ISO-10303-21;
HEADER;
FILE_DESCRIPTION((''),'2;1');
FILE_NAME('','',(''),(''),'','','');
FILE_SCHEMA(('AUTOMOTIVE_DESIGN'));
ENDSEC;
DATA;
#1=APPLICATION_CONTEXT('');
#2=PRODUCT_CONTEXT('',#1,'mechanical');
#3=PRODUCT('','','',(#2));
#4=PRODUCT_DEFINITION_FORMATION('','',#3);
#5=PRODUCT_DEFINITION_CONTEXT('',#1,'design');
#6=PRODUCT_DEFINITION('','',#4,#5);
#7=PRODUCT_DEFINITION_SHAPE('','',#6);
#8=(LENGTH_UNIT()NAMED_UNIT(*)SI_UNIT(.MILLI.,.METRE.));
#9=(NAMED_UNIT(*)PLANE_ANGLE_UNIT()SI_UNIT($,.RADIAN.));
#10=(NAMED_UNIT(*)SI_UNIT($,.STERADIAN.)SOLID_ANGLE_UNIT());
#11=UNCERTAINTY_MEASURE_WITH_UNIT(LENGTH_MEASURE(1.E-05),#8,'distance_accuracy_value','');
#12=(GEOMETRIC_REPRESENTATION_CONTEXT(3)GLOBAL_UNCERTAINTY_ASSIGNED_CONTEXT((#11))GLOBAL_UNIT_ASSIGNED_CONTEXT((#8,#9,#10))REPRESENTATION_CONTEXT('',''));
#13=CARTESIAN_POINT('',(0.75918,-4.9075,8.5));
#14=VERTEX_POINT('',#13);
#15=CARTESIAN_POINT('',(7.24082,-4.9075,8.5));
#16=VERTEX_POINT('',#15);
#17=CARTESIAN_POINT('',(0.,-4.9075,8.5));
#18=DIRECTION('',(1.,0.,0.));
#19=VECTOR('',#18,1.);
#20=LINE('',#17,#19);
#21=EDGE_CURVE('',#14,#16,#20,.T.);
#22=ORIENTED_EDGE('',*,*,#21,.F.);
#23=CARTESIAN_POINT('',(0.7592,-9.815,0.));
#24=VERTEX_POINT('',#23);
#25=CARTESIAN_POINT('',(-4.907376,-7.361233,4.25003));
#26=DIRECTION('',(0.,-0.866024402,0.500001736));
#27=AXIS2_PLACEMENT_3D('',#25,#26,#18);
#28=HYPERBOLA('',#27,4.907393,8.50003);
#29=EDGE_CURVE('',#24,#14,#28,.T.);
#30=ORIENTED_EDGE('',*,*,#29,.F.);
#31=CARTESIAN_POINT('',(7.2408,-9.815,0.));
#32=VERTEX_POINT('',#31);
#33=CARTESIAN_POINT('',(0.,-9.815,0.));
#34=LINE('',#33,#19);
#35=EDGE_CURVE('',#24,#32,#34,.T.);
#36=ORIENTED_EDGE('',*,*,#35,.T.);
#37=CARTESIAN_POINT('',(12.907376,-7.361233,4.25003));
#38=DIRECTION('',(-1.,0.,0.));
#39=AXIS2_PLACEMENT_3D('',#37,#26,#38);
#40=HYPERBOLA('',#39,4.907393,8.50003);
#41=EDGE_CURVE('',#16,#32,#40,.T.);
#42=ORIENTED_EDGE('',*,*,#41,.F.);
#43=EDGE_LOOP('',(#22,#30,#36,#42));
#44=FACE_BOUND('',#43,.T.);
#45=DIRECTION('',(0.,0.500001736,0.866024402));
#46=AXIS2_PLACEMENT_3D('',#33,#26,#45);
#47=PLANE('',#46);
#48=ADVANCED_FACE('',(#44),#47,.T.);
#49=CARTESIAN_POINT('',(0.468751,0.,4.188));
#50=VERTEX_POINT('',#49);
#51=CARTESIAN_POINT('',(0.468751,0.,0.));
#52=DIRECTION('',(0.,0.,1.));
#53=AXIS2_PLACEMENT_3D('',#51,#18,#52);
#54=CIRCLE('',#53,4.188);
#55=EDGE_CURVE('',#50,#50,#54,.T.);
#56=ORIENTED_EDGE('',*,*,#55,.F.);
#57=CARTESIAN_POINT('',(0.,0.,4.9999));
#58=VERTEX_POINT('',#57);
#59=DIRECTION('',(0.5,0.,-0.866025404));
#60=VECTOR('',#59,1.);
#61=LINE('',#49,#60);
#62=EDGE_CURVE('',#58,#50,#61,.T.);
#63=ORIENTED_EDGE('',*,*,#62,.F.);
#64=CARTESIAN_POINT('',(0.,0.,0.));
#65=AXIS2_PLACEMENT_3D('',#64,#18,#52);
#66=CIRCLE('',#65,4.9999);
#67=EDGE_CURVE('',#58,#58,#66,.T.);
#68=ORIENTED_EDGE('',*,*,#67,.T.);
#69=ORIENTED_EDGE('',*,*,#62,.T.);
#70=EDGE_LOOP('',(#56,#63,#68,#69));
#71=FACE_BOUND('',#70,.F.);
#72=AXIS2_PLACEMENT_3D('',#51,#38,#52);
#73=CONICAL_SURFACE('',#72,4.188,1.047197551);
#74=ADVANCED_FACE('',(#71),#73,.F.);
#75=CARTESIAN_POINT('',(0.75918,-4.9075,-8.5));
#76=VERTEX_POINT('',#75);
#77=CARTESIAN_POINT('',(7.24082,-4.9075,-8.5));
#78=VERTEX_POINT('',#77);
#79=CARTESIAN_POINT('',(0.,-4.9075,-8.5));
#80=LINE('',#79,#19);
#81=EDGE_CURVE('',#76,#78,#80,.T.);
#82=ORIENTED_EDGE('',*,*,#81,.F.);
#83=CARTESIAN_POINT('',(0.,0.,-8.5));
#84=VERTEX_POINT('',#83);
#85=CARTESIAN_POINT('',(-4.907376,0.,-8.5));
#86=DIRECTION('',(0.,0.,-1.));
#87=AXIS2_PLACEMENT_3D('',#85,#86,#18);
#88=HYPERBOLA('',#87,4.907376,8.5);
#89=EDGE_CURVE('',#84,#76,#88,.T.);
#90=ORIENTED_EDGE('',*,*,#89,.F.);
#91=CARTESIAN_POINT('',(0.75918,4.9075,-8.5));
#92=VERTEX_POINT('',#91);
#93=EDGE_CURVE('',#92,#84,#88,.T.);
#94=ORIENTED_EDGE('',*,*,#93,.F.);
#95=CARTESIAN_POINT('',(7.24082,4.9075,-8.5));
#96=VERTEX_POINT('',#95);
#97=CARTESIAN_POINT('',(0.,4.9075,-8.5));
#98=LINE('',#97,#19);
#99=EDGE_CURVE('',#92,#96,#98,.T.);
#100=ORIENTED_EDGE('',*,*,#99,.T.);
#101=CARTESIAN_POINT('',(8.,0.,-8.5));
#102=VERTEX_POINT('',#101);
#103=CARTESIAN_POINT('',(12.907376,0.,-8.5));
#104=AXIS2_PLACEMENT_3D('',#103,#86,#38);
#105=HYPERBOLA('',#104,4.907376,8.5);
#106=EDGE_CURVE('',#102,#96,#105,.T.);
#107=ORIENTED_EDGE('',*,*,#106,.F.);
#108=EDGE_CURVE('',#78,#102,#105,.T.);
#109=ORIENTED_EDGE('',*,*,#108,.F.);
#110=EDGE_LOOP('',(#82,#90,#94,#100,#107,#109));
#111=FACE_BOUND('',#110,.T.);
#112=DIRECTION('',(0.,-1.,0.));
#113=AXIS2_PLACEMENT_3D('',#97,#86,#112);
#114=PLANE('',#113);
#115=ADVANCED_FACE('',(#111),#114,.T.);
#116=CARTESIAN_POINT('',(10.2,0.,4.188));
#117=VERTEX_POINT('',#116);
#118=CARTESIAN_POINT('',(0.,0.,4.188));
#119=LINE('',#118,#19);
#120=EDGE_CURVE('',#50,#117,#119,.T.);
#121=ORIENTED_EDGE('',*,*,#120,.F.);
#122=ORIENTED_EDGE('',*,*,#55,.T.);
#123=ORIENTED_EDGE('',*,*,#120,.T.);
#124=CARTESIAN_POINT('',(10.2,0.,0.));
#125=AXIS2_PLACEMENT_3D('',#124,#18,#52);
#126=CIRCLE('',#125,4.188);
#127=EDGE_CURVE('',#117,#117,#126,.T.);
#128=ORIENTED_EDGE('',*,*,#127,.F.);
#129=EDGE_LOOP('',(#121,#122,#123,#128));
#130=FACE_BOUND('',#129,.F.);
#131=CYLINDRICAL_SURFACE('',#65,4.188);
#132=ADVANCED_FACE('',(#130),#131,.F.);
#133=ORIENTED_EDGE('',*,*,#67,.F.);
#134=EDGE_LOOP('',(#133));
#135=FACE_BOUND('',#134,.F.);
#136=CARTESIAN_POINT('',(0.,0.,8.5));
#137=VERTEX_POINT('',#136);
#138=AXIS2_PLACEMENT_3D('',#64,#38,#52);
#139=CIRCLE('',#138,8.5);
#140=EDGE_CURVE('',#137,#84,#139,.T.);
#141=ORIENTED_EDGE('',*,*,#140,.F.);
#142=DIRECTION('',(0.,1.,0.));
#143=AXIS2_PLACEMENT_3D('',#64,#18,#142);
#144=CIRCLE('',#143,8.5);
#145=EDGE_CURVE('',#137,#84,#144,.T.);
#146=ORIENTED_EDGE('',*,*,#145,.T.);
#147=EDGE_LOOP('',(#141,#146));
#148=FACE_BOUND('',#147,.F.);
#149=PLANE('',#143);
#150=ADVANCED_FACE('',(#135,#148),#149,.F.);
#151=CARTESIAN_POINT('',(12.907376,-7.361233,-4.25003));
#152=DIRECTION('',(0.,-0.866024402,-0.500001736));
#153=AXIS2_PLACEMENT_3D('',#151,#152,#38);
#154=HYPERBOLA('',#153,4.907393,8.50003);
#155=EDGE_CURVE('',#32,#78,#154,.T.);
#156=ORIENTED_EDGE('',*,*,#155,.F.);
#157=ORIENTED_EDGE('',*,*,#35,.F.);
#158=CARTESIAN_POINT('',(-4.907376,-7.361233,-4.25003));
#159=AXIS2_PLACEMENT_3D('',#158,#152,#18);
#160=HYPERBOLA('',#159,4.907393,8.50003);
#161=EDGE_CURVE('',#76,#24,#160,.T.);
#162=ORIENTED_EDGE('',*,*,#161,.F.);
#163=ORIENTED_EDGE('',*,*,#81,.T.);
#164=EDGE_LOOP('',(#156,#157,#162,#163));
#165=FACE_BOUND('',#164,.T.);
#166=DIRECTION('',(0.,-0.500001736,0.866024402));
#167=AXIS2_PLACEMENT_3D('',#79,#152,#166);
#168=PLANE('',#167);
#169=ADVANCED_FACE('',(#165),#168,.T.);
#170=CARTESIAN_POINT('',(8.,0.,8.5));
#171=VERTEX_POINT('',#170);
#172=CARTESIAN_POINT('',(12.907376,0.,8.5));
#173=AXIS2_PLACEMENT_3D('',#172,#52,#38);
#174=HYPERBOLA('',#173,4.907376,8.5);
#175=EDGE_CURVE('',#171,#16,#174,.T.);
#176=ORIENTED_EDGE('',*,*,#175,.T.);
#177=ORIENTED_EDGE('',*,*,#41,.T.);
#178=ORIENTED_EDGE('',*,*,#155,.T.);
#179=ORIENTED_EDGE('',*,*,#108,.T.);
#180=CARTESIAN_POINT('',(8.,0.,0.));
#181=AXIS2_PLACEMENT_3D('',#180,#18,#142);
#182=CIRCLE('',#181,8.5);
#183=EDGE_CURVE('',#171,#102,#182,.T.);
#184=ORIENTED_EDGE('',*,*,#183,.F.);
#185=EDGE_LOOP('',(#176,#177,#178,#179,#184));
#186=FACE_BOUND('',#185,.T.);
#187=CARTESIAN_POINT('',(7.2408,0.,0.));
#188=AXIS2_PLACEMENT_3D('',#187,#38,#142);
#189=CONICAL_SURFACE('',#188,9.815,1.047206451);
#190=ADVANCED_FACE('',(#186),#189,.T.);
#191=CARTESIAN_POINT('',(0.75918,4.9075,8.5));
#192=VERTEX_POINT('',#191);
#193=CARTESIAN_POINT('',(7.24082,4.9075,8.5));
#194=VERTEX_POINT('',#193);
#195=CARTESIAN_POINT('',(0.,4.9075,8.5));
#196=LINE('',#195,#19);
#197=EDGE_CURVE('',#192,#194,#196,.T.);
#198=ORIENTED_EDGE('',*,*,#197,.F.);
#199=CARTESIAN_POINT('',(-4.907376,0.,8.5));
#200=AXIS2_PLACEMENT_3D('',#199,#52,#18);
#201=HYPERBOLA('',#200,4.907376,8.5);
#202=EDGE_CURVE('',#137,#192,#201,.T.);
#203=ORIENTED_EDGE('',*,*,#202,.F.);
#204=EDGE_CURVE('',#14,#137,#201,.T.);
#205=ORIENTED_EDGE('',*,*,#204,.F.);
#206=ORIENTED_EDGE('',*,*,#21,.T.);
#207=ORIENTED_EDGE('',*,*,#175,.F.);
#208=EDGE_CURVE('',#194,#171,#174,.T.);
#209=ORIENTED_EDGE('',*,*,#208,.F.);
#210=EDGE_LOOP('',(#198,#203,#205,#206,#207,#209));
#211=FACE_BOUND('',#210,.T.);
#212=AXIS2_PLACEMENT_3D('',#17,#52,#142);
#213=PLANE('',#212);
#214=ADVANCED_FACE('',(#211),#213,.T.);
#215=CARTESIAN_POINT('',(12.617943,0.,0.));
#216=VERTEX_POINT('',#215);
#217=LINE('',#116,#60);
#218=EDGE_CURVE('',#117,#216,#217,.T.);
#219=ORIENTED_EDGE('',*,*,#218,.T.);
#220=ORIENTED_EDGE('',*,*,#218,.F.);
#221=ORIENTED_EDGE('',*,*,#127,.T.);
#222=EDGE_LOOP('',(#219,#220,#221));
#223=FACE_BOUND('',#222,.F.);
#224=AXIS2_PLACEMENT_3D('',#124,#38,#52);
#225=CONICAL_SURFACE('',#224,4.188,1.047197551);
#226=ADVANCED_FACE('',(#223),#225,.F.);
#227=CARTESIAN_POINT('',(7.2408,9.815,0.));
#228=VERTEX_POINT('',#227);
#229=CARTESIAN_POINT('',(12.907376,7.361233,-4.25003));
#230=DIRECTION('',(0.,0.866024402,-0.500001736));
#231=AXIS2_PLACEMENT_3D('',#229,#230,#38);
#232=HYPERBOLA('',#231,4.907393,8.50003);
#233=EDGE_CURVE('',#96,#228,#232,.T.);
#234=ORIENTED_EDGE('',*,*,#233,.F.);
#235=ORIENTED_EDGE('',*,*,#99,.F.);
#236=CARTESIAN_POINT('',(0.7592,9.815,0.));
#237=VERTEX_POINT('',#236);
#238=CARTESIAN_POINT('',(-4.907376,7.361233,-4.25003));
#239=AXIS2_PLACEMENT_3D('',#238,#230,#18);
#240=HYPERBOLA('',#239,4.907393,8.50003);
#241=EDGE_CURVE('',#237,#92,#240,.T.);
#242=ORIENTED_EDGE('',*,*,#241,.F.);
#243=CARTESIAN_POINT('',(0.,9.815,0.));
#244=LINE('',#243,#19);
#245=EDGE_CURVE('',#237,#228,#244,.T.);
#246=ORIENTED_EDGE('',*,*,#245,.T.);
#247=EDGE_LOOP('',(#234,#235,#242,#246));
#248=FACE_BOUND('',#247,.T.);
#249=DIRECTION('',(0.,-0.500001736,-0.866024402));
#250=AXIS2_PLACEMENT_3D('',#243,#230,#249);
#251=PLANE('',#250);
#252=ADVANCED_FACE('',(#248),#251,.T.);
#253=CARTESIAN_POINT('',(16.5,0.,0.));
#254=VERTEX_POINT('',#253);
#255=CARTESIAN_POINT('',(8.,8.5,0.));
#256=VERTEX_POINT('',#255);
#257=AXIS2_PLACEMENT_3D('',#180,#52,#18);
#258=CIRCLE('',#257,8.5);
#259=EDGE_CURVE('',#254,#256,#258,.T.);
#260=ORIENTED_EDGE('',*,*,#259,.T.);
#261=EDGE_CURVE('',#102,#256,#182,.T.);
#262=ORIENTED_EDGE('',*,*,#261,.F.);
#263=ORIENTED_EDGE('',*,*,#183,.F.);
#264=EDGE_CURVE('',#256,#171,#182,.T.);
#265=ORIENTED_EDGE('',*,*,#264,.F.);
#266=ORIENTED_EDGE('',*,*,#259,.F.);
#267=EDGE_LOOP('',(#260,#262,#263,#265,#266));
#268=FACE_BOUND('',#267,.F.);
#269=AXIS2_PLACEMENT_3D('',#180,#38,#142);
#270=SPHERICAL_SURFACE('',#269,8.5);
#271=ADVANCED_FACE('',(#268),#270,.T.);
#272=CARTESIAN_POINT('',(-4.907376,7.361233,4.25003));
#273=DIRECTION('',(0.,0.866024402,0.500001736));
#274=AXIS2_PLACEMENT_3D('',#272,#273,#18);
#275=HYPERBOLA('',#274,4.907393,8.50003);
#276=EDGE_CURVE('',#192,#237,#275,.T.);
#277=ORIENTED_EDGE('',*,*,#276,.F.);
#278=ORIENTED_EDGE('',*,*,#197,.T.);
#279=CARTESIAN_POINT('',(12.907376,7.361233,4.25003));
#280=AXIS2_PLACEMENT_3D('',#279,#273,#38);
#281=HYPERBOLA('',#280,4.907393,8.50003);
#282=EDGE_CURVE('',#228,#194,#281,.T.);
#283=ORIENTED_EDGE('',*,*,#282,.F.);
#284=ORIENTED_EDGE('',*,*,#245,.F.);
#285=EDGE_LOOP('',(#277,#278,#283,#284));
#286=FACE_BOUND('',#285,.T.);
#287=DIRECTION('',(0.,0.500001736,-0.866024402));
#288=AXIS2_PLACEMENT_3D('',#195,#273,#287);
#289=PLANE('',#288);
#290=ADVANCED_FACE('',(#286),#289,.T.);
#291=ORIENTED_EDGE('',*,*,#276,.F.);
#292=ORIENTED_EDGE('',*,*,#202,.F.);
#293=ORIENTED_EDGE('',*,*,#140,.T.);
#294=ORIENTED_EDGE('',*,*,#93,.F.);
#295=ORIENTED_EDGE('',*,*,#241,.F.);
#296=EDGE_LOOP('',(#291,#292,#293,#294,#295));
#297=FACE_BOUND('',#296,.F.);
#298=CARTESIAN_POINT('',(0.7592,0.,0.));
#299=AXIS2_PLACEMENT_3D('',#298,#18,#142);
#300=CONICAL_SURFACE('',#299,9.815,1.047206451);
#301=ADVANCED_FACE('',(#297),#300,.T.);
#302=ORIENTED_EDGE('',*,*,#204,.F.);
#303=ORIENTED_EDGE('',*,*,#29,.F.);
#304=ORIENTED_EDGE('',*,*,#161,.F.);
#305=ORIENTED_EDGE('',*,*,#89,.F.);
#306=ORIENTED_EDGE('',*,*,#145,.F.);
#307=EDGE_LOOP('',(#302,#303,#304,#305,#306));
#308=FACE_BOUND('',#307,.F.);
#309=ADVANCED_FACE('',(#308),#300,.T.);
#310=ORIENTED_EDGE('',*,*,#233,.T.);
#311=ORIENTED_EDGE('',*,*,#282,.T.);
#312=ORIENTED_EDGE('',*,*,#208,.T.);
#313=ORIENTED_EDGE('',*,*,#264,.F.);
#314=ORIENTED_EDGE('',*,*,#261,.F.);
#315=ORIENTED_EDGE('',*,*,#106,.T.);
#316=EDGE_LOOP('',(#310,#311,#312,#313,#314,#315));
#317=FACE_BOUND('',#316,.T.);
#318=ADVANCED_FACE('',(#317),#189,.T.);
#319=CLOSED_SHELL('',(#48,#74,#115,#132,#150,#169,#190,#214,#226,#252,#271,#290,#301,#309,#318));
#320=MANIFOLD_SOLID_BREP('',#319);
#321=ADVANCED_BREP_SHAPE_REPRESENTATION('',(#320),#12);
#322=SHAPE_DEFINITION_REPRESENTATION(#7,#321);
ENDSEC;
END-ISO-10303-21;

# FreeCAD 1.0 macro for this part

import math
import FreeCAD as App
import Part
import Sketcher
from FreeCAD import Vector
Q = App.Units.Quantity


def edges_at(feature, points):
    """Names of the edges that pass closest to the given points."""
    edges = feature.Shape.Edges
    near = lambda p: min(range(len(edges)), key=lambda i: edges[i].distToShape(Part.Vertex(*p))[0])
    return sorted({f"Edge{near(p) + 1}" for p in points})

doc = App.newDocument("Part")
body = doc.addObject("PartDesign::Body", "Body")

sketch1 = doc.addObject("Sketcher::SketchObject", "Sketch")
body.addObject(sketch1)
sketch1.AttachmentSupport = (doc.YZ_Plane, [""])
sketch1.MapMode = "FlatFace"
sketch1.addGeometry([
    Part.LineSegment(Vector(-9.815, 0, 0), Vector(-4.9075, -8.5, 0)),
    Part.LineSegment(Vector(-4.9075, -8.5, 0), Vector(4.9075, -8.5, 0)),
    Part.LineSegment(Vector(4.9075, -8.5, 0), Vector(9.815, 0, 0)),
    Part.LineSegment(Vector(9.815, 0, 0), Vector(4.9075, 8.5, 0)),
    Part.LineSegment(Vector(4.9075, 8.5, 0), Vector(-4.9075, 8.5, 0)),
    Part.LineSegment(Vector(-4.9075, 8.5, 0), Vector(-9.815, 0, 0)),
], False)
sketch1.addConstraint([
    Sketcher.Constraint("Coincident", 0, 2, 1, 1),
    Sketcher.Constraint("Coincident", 1, 2, 2, 1),
    Sketcher.Constraint("Coincident", 2, 2, 3, 1),
    Sketcher.Constraint("Coincident", 3, 2, 4, 1),
    Sketcher.Constraint("Coincident", 4, 2, 5, 1),
    Sketcher.Constraint("Coincident", 5, 2, 0, 1),
    Sketcher.Constraint("Horizontal", 1),
    Sketcher.Constraint("Horizontal", 4),
    Sketcher.Constraint("Symmetric", 0, 2, 3, 2, -1, 1),
    Sketcher.Constraint("Symmetric", 2, 2, 5, 2, -1, 1),
    Sketcher.Constraint("PointOnObject", 2, 2, -1),
    Sketcher.Constraint("Parallel", 2, 5),
    Sketcher.Constraint("Vertical", 1, 2, 3, 2),
    Sketcher.Constraint("Angle", 0, Q("-60 deg")),
    Sketcher.Constraint("DistanceX", 5, 2, 2, 2, Q("19.63 mm")),
    Sketcher.Constraint("DistanceY", 1, 2, 3, 2, Q("17 mm")),
])
pad1 = doc.addObject("PartDesign::Pad", "Pad")
body.addObject(pad1)
pad1.Profile = sketch1
pad1.Length = 8

sketch2 = doc.addObject("Sketcher::SketchObject", "Sketch001")
body.addObject(sketch2)
sketch2.AttachmentSupport = (doc.XY_Plane, [""])
sketch2.MapMode = "FlatFace"
sketch2.addGeometry([
    Part.LineSegment(Vector(8, 8.5, 0), Vector(8, 0, 0)),
    Part.LineSegment(Vector(8, 0, 0), Vector(16.5, 0, 0)),
    Part.ArcOfCircle(Part.Circle(Vector(8, 0, 0), Vector(0, 0, 1), 8.5), math.radians(0), math.radians(90)),
], False)
sketch2.addConstraint([
    Sketcher.Constraint("Coincident", 0, 2, 1, 1),
    Sketcher.Constraint("Coincident", 1, 2, 2, 1),
    Sketcher.Constraint("Coincident", 2, 2, 0, 1),
    Sketcher.Constraint("Vertical", 0),
    Sketcher.Constraint("Horizontal", 1),
    Sketcher.Constraint("Coincident", 0, 2, 2, 3),
    Sketcher.Constraint("PointOnObject", 2, 3, -1),
    Sketcher.Constraint("Radius", 2, Q("8.5 mm")),
    Sketcher.Constraint("DistanceX", -1, 1, 2, 3, Q("8 mm")),
])
revolution = doc.addObject("PartDesign::Revolution", "Revolution")
body.addObject(revolution)
revolution.Profile = sketch2
revolution.ReferenceAxis = (sketch2, ["H_Axis"])
revolution.Angle = 360

sketch3 = doc.addObject("Sketcher::SketchObject", "Sketch002")
body.addObject(sketch3)
sketch3.AttachmentSupport = (doc.YZ_Plane, [""])
sketch3.MapMode = "FlatFace"
sketch3.addGeometry(Part.Circle(Vector(0, 0, 0), Vector(0, 0, 1), 4.188), False)
sketch3.addConstraint([
    Sketcher.Constraint("Coincident", 0, 3, -1, 1),
    Sketcher.Constraint("Diameter", 0, Q("8.376 mm")),
])
doc.recompute()
hole = doc.addObject("PartDesign::Hole", "Hole")
body.addObject(hole)
hole.Profile = sketch3
hole.ThreadType = "None"
hole.Diameter = 8.376
hole.DepthType = "Dimension"
hole.Depth = 10.2
hole.DrillPoint = "Angled"
hole.DrillPointAngle = 120
hole.Reversed = True

sketch4 = doc.addObject("Sketcher::SketchObject", "Sketch003")
body.addObject(sketch4)
sketch4.AttachmentSupport = (doc.XY_Plane, [""])
sketch4.MapMode = "FlatFace"
sketch4.addGeometry([
    Part.LineSegment(Vector(8, 9.815, 0), Vector(7.2408, 9.815, 0)),
    Part.LineSegment(Vector(7.2408, 9.815, 0), Vector(8, 8.5, 0)),
    Part.LineSegment(Vector(8, 8.5, 0), Vector(8, 9.815, 0)),
    Part.LineSegment(Vector(0, 9.815, 0), Vector(0, 8.5, 0)),
    Part.LineSegment(Vector(0, 8.5, 0), Vector(0.7592, 9.815, 0)),
    Part.LineSegment(Vector(0.7592, 9.815, 0), Vector(0, 9.815, 0)),
], False)
sketch4.addConstraint([
    Sketcher.Constraint("Coincident", 0, 2, 1, 1),
    Sketcher.Constraint("Coincident", 1, 2, 2, 1),
    Sketcher.Constraint("Coincident", 2, 2, 0, 1),
    Sketcher.Constraint("Coincident", 3, 2, 4, 1),
    Sketcher.Constraint("Coincident", 4, 2, 5, 1),
    Sketcher.Constraint("Coincident", 5, 2, 3, 1),
    Sketcher.Constraint("Horizontal", 0),
    Sketcher.Constraint("Vertical", 2),
    Sketcher.Constraint("Vertical", 3),
    Sketcher.Constraint("Horizontal", 5),
    Sketcher.Constraint("PointOnObject", 3, 2, -2),
    Sketcher.Constraint("Horizontal", 1, 2, 3, 2),
    Sketcher.Constraint("Horizontal", 2, 2, 4, 2),
    Sketcher.Constraint("Equal", 0, 5),
    Sketcher.Constraint("Angle", 1, Q("-60.0005 deg")),
    Sketcher.Constraint("DistanceX", -1, 1, 1, 2, Q("8 mm")),
    Sketcher.Constraint("DistanceY", -1, 1, 1, 2, Q("8.5 mm")),
    Sketcher.Constraint("DistanceY", 2, 1, 2, 2, Q("1.315 mm")),
])
groove = doc.addObject("PartDesign::Groove", "Groove")
body.addObject(groove)
groove.Profile = sketch4
groove.ReferenceAxis = (sketch4, ["H_Axis"])
groove.Angle = 360
doc.recompute()

chamfer = doc.addObject("PartDesign::Chamfer", "Chamfer")
body.addObject(chamfer)
chamfer.Base = (groove, edges_at(groove, [(0, 0, -4.188)]))
chamfer.ChamferType = "Distance and Angle"
chamfer.Size = 0.8119
chamfer.Angle = 30

doc.recompute()
